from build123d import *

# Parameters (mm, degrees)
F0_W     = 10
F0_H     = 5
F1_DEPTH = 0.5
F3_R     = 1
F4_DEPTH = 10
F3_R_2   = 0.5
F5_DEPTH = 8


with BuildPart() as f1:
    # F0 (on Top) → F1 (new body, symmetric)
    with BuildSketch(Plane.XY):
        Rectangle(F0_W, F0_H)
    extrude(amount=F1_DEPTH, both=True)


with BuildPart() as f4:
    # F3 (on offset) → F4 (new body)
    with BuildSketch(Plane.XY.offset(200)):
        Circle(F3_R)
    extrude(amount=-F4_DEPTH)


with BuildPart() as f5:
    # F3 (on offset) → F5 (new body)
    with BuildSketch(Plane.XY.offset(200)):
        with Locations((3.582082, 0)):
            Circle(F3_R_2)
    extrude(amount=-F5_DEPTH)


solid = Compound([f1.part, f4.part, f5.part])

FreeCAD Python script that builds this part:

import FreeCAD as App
import Part
import Sketcher
from FreeCAD import Vector

doc = App.newDocument("Part")
body = doc.addObject("PartDesign::Body", "Body")

sketch1 = doc.addObject("Sketcher::SketchObject", "Sketch")
body.addObject(sketch1)
sketch1.AttachmentSupport = (doc.XY_Plane, [""])
sketch1.MapMode = "FlatFace"
sketch1.addGeometry(Part.LineSegment(Vector(-5, 2, 0), Vector(-5, -2, 0)), False)
sketch1.addGeometry(Part.LineSegment(Vector(-5, -2, 0), Vector(5, -2, 0)), False)
sketch1.addGeometry(Part.LineSegment(Vector(5, -2, 0), Vector(5, 2, 0)), False)
sketch1.addGeometry(Part.LineSegment(Vector(5, 2, 0), Vector(-5, 2, 0)), False)
sketch1.addConstraint(Sketcher.Constraint("Coincident", 0, 2, 1, 1))
sketch1.addConstraint(Sketcher.Constraint("Coincident", 1, 2, 2, 1))
sketch1.addConstraint(Sketcher.Constraint("Coincident", 2, 2, 3, 1))
sketch1.addConstraint(Sketcher.Constraint("Coincident", 3, 2, 0, 1))
sketch1.addConstraint(Sketcher.Constraint("Vertical", 0))
sketch1.addConstraint(Sketcher.Constraint("Horizontal", 1))
sketch1.addConstraint(Sketcher.Constraint("Vertical", 2))
sketch1.addConstraint(Sketcher.Constraint("Horizontal", 3))
sketch1.addConstraint(Sketcher.Constraint("Symmetric", 0, 2, 2, 2, -1, 1))
sketch1.addConstraint(Sketcher.Constraint("DistanceX", 1, 1, 1, 2, 10.0))
sketch1.addConstraint(Sketcher.Constraint("DistanceY", 0, 2, 0, 1, 5.0))
pad1 = doc.addObject("PartDesign::Pad", "Pad")
body.addObject(pad1)
pad1.Profile = sketch1
pad1.Length = 1
pad1.Midplane = True
body2 = doc.addObject("PartDesign::Body", "Body001")

sketch2 = doc.addObject("Sketcher::SketchObject", "Sketch001")
body2.addObject(sketch2)
sketch2.AttachmentSupport = (doc.getObject("XY_Plane001"), [""])
sketch2.MapMode = "FlatFace"
sketch2.AttachmentOffset = App.Placement(Vector(0, 0, 200), App.Rotation())
sketch2.addGeometry(Part.Circle(Vector(0, 0, 0), Vector(0, 0, 1), 1), False)
sketch2.addConstraint(Sketcher.Constraint("Coincident", 0, 3, -1, 1))
sketch2.addConstraint(Sketcher.Constraint("Diameter", 0, 2.0))
pad2 = doc.addObject("PartDesign::Pad", "Pad001")
body2.addObject(pad2)
pad2.Profile = sketch2
pad2.Length = 10
pad2.Reversed = True
body3 = doc.addObject("PartDesign::Body", "Body002")

sketch3 = doc.addObject("Sketcher::SketchObject", "Sketch002")
body3.addObject(sketch3)
sketch3.AttachmentSupport = (doc.getObject("XY_Plane002"), [""])
sketch3.MapMode = "FlatFace"
sketch3.AttachmentOffset = App.Placement(Vector(0, 0, 200), App.Rotation())
sketch3.addGeometry(Part.Circle(Vector(3.6, 0, 0), Vector(0, 0, 1), 0.5), False)
sketch3.addConstraint(Sketcher.Constraint("PointOnObject", 0, 3, -1))
sketch3.addConstraint(Sketcher.Constraint("Diameter", 0, 1.0))
sketch3.addConstraint(Sketcher.Constraint("DistanceX", -1, 1, 0, 3, 3.582082))
pad3 = doc.addObject("PartDesign::Pad", "Pad002")
body3.addObject(pad3)
pad3.Profile = sketch3
pad3.Length = 8
pad3.Reversed = True

doc.recompute()
